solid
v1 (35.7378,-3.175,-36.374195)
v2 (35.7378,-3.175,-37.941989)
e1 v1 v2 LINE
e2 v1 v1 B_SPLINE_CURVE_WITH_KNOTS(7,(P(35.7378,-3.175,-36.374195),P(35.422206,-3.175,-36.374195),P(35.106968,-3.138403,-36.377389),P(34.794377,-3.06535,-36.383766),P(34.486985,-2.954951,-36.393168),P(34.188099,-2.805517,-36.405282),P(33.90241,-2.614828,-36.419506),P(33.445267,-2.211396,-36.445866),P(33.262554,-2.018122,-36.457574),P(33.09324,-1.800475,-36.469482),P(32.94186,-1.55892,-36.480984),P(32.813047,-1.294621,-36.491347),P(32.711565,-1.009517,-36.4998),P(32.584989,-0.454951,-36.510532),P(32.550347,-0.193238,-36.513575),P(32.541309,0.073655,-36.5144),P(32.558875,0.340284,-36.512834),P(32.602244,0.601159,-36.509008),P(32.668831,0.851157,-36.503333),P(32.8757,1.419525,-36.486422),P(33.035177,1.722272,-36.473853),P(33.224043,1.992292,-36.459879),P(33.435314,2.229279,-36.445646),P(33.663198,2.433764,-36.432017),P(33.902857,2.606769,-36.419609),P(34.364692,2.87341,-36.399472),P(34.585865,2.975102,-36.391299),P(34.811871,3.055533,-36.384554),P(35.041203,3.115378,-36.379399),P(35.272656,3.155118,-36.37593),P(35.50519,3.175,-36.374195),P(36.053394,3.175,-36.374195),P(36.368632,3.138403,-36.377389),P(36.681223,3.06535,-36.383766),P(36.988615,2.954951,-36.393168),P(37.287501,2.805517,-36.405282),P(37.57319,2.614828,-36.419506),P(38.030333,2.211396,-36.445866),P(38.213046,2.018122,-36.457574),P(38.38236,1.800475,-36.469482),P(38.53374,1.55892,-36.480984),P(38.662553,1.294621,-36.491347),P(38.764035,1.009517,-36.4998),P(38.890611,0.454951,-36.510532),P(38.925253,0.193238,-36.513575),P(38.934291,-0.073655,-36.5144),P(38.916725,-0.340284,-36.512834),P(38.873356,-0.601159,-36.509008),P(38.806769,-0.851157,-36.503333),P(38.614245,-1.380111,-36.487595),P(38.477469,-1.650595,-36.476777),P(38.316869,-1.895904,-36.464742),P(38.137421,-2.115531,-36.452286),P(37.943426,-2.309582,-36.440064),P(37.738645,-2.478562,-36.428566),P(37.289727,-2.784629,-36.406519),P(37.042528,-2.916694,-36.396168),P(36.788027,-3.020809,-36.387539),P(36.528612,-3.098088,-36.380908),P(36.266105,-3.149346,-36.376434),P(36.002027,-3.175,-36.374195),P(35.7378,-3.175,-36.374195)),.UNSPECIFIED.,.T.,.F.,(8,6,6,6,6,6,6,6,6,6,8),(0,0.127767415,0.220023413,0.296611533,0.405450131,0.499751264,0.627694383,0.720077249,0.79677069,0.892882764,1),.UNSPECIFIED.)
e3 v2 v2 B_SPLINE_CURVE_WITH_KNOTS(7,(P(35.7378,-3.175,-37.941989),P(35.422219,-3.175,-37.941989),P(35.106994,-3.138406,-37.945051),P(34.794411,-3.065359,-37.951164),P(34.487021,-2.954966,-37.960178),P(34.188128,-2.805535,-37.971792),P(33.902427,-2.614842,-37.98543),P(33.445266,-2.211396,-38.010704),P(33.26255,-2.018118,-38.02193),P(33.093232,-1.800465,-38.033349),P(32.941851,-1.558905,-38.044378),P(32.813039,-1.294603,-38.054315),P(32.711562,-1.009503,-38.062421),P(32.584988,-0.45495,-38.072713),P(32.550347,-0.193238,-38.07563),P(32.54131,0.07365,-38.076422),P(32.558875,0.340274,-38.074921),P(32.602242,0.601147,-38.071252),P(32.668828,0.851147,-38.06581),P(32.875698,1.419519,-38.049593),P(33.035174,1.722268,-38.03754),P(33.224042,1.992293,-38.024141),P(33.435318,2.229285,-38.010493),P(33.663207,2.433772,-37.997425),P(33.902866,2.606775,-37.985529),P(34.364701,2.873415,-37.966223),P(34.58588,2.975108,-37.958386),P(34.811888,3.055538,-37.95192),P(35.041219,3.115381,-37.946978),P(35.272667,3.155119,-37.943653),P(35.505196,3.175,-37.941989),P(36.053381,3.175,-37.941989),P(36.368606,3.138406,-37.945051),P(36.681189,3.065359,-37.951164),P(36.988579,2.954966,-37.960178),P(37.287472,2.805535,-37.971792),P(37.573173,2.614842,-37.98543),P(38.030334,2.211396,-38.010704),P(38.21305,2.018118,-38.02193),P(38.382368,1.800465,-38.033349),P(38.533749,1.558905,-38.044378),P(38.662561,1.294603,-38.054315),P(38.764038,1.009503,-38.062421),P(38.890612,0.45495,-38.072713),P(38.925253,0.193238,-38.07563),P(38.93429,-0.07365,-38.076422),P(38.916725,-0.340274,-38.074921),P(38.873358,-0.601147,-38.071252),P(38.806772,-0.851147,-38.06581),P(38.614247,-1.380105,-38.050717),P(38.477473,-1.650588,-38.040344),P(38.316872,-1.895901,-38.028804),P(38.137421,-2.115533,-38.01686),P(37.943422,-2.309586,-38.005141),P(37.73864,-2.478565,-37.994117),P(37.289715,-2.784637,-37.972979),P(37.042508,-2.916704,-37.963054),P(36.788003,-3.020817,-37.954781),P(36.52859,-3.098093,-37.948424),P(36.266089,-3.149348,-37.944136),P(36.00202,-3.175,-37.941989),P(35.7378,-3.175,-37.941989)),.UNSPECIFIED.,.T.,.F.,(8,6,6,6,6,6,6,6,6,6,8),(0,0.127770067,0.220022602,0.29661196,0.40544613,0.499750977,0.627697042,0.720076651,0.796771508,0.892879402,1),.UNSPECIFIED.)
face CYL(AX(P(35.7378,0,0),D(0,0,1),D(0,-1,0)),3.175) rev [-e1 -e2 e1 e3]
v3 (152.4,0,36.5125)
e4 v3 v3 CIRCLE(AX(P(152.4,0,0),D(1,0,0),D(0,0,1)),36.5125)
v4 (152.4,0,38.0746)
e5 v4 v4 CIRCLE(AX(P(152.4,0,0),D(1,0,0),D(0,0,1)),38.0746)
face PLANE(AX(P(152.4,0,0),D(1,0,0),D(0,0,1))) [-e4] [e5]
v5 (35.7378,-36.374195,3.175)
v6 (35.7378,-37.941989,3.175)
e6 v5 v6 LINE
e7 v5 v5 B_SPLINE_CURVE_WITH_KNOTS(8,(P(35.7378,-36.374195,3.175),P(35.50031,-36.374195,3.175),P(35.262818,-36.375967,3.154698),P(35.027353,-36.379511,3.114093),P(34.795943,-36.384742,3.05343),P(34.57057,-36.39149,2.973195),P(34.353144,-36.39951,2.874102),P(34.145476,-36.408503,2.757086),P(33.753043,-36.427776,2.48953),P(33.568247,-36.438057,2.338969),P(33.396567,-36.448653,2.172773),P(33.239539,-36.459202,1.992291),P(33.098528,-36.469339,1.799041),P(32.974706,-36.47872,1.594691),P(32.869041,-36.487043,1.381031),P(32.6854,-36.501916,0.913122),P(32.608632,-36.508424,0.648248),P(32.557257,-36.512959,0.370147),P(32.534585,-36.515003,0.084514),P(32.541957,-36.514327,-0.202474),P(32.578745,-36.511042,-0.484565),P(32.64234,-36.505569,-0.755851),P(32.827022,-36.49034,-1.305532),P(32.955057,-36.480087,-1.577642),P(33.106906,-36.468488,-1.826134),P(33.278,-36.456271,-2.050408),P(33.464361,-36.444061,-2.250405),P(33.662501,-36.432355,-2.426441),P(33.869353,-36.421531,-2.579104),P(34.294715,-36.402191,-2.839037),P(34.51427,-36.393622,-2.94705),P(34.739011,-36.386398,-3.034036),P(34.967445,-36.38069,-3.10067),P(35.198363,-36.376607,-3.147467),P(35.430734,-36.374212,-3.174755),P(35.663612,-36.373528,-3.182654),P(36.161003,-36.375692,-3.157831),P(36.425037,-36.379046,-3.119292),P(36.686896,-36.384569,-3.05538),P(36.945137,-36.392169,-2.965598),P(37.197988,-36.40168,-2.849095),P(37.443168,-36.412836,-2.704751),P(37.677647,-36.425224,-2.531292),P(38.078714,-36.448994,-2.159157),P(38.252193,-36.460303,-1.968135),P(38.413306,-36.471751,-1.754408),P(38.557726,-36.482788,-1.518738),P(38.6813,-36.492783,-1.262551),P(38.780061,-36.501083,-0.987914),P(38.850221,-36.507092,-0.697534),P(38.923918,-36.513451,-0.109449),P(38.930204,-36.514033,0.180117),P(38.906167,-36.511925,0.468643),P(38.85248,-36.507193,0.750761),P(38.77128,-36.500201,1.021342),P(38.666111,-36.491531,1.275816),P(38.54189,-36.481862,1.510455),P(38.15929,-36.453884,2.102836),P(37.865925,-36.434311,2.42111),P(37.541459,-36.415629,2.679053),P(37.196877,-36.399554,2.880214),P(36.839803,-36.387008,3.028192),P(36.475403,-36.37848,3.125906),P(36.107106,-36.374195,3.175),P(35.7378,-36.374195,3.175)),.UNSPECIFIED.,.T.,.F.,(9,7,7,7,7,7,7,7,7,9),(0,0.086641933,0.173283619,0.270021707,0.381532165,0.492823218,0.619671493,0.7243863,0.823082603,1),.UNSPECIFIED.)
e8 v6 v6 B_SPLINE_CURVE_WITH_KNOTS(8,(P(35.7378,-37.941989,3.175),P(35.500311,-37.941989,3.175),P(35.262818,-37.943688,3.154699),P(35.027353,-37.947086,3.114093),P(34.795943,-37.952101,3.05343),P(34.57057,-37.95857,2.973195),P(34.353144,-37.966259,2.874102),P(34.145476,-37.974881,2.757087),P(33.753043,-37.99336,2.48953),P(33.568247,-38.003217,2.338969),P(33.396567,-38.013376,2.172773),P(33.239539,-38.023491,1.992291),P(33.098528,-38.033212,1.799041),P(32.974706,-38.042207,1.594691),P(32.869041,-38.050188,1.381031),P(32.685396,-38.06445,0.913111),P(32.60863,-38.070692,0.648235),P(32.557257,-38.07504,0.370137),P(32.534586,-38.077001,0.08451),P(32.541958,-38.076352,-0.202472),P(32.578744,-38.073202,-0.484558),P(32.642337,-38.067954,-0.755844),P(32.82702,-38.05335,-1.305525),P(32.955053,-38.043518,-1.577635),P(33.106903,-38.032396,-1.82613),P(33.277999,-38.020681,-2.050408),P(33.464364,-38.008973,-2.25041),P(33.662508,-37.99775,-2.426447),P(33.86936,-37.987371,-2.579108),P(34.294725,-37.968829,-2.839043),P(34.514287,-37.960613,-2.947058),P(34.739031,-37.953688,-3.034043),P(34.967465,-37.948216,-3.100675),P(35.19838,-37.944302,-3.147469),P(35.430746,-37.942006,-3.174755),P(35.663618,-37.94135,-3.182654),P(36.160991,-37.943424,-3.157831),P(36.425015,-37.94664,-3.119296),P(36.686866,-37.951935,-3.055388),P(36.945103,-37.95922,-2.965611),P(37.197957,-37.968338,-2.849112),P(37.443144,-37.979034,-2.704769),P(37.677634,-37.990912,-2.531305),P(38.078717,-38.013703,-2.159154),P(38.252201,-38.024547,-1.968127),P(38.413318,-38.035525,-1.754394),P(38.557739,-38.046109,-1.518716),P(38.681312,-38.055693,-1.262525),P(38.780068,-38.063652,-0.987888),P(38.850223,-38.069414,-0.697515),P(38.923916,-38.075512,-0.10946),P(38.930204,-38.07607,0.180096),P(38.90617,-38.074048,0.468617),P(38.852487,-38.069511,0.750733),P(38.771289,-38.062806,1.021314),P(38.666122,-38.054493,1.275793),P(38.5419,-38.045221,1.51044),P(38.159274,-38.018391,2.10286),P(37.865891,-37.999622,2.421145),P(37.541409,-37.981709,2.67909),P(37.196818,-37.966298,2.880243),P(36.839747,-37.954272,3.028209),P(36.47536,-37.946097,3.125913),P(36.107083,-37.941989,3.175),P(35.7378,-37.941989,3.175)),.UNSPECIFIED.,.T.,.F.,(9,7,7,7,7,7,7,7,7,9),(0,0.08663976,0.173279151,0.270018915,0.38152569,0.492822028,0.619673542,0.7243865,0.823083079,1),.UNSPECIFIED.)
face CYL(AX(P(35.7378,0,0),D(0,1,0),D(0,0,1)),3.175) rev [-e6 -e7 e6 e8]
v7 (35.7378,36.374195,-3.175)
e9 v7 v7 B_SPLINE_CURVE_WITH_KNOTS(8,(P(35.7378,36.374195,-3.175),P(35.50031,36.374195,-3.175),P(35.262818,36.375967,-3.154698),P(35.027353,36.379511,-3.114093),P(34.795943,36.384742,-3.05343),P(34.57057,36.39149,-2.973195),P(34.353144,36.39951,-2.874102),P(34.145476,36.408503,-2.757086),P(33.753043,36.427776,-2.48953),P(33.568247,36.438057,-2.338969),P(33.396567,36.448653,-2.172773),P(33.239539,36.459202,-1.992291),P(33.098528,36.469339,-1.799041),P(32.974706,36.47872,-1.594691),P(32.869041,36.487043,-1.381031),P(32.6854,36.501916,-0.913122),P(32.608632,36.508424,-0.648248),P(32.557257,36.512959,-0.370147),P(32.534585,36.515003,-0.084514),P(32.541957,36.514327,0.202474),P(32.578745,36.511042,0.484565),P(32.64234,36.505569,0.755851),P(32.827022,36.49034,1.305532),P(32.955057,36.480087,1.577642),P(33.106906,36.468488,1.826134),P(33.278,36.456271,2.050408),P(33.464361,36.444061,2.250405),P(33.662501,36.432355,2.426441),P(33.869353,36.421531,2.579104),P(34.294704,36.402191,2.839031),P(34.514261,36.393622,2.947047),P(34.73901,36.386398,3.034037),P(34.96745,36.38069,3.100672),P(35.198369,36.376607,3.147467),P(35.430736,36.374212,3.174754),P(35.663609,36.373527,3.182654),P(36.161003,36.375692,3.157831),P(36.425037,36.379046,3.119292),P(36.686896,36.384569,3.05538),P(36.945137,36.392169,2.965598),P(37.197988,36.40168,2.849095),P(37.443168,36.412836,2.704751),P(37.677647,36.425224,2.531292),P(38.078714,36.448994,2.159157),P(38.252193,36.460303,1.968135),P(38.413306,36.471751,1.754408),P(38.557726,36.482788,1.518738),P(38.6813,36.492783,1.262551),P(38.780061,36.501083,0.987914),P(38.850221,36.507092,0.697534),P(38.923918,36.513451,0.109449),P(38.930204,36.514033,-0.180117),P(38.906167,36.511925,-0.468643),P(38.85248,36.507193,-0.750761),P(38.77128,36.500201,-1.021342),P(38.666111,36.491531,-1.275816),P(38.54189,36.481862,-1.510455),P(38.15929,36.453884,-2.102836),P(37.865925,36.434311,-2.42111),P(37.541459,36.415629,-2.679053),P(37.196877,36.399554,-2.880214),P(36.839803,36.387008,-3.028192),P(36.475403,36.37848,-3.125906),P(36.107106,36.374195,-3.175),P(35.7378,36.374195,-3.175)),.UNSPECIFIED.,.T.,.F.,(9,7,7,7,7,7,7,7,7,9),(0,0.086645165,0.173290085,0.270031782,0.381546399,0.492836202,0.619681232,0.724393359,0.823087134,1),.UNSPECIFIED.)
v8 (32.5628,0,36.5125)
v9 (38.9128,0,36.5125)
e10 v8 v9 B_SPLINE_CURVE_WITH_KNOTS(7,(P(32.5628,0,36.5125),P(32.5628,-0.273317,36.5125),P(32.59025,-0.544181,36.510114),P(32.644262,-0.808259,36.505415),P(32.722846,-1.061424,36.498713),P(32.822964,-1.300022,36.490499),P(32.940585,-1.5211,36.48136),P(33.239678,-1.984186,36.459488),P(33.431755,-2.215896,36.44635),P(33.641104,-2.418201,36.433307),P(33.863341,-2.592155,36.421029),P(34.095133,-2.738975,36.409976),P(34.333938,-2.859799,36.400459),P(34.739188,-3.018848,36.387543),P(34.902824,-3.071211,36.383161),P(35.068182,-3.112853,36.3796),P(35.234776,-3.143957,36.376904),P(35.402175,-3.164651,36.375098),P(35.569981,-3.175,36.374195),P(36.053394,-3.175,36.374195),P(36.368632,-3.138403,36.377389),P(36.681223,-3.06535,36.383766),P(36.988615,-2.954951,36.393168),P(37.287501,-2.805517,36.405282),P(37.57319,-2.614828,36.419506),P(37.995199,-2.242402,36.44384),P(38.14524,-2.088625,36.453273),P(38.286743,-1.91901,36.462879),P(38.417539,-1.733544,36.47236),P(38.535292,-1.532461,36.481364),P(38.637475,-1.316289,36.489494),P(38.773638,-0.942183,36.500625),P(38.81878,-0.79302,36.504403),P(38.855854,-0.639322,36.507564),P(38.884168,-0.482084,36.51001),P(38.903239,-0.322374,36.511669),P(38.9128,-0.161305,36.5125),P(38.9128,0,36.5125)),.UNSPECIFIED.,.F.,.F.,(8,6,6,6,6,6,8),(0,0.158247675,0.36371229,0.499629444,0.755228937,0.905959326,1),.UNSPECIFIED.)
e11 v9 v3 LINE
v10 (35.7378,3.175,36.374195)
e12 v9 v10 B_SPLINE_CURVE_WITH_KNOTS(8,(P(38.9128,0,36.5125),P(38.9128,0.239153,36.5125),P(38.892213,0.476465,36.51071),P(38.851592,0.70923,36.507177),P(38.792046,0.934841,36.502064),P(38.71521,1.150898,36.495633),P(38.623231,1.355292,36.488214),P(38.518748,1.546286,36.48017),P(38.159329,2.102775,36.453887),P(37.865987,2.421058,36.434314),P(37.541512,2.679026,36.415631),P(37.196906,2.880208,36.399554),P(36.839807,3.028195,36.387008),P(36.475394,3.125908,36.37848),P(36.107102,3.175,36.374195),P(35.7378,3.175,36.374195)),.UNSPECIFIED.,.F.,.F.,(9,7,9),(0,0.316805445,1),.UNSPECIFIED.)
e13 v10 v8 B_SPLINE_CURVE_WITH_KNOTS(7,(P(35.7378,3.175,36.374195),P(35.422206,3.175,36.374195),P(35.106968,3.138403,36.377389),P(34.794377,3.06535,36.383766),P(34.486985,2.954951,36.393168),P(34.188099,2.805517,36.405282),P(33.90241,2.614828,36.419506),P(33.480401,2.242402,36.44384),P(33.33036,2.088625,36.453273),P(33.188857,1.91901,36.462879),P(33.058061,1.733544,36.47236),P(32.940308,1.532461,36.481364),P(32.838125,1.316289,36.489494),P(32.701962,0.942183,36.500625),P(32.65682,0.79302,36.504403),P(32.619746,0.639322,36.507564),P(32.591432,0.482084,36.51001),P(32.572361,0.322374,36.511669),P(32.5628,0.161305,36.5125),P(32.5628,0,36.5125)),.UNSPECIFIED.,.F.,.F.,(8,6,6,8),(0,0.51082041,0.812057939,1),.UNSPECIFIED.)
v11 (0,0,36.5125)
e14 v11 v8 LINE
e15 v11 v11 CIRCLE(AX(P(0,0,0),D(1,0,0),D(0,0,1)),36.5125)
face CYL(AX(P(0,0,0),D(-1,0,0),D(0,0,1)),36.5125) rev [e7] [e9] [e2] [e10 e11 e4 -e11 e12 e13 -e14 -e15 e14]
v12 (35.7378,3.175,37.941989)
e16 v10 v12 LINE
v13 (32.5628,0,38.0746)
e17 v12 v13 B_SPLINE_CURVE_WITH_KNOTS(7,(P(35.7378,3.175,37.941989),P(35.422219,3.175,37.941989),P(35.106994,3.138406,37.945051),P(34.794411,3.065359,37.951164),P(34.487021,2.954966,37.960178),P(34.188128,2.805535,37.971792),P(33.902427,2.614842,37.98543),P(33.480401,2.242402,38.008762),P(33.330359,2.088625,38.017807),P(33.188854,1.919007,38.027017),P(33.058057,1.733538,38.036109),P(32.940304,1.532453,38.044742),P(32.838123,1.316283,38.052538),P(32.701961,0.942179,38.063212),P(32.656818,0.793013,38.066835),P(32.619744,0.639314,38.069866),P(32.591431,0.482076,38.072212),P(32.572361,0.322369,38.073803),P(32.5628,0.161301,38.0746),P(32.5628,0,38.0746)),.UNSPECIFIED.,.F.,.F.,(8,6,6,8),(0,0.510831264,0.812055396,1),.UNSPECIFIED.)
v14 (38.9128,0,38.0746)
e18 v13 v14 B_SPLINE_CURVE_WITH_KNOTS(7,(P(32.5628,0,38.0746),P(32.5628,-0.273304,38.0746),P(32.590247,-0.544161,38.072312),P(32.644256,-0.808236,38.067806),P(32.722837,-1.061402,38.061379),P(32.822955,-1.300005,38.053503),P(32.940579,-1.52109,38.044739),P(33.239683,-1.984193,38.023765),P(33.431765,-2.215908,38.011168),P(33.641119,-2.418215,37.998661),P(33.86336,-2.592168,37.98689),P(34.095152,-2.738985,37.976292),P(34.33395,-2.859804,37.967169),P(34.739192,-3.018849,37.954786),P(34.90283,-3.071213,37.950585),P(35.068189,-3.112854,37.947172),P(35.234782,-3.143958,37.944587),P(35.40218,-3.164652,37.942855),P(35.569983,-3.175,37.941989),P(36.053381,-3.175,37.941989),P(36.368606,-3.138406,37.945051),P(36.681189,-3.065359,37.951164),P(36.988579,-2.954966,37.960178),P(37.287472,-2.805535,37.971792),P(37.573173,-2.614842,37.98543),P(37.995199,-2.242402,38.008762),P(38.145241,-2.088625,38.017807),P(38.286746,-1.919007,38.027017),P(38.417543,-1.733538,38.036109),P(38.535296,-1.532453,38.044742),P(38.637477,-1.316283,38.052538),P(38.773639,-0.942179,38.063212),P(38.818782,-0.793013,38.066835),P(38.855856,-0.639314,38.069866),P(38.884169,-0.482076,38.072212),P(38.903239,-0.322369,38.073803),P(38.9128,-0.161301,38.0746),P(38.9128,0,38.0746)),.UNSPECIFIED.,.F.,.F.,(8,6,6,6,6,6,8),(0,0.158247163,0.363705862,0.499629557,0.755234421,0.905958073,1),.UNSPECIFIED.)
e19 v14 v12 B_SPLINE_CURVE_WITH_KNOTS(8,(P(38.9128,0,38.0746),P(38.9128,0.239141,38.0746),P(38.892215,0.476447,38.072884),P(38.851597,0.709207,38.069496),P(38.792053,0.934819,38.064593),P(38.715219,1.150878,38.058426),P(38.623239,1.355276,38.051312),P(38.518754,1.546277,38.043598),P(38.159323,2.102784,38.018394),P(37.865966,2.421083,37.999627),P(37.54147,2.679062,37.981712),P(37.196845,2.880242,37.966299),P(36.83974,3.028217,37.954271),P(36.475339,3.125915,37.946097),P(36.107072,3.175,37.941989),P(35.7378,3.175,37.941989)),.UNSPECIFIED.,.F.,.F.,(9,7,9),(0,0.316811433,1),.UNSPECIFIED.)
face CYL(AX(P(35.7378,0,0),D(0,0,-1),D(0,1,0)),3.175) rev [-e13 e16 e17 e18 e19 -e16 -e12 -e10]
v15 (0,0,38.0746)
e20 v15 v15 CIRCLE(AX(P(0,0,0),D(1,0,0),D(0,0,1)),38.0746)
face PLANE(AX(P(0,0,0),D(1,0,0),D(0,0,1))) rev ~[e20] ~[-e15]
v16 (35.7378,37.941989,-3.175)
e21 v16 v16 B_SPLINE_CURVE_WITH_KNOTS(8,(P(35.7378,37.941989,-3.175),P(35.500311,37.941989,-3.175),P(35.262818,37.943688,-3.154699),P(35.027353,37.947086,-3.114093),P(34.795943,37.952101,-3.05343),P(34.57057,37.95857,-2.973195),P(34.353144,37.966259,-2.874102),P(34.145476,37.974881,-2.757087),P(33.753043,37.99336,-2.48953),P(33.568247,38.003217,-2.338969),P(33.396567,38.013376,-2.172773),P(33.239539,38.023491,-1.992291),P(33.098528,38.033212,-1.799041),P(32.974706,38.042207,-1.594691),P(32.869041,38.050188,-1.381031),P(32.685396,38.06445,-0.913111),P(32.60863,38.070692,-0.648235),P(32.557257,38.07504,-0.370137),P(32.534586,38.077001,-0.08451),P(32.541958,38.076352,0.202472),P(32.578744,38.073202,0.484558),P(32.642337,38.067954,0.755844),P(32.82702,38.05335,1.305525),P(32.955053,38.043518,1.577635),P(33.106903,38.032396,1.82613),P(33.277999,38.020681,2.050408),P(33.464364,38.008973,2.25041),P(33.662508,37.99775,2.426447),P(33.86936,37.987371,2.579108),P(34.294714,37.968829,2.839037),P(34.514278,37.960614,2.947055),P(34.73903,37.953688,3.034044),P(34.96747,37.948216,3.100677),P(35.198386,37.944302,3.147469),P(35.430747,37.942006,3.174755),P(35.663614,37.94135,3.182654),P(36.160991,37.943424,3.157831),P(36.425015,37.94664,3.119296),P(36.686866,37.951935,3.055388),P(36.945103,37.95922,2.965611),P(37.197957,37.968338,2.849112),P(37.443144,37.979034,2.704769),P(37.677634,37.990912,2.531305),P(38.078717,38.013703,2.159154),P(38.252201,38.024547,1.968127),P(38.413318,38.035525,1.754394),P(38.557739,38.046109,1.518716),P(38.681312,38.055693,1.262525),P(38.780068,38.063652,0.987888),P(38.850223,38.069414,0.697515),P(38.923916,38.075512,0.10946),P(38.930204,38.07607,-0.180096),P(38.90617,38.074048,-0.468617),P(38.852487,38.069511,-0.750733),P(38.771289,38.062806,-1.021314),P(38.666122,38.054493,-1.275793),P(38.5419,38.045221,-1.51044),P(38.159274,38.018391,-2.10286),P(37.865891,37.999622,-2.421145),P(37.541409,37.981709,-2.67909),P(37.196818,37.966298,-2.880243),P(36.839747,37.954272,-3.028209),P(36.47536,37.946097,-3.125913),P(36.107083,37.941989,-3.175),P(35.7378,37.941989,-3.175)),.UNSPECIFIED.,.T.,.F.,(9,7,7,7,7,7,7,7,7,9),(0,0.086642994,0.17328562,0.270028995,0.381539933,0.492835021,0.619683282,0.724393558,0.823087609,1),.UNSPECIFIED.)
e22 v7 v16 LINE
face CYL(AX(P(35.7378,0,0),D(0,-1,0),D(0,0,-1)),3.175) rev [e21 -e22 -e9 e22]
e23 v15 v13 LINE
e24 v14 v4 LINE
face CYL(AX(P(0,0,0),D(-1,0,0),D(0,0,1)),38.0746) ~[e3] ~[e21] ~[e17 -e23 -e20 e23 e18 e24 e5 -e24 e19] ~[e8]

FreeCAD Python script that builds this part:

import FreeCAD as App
import Part
import Sketcher
Q = App.Units.Quantity

doc = App.newDocument("Part")
body = doc.addObject("PartDesign::Body", "Body")

# Sketch on YZ plane
sketch1 = body.newObject("Sketcher::SketchObject", "Sketch")
sketch1.AttachmentSupport = (doc.getObject("YZ_Plane"), [""])
sketch1.MapMode = "FlatFace"
sketch1.addGeometry([
    Part.Circle(App.Vector(0, 0, 0), App.Vector(0, 0, 1), 38.0746),
    Part.Circle(App.Vector(0, 0, 0), App.Vector(0, 0, 1), 36.5125),
], False)
sketch1.addConstraint([
    Sketcher.Constraint("Coincident", 0, 3, -1, 1),
    Sketcher.Constraint("Coincident", 1, 3, -1, 1),
    Sketcher.Constraint("Diameter", 0, Q("2.998 in")),
    Sketcher.Constraint("Diameter", 1, Q("2.875 in")),
])
pad1 = body.newObject("PartDesign::Pad", "Pad")
pad1.Profile = sketch1
pad1.Length = Q("6 in")

# Sketch on XZ plane
sketch2 = body.newObject("Sketcher::SketchObject", "Sketch001")
sketch2.AttachmentSupport = (doc.getObject("XZ_Plane"), [""])
sketch2.MapMode = "FlatFace"
sketch2.addGeometry(Part.Circle(App.Vector(35.7378, 0, 0), App.Vector(0, 0, 1), 3.175), False)
sketch2.addConstraint([
    Sketcher.Constraint("PointOnObject", 0, 3, -1),
    Sketcher.Constraint("Diameter", 0, Q("0.25 in")),
    Sketcher.Constraint("DistanceX", -1, 1, 0, 3, Q("1.407 in")),
])
pocket1 = body.newObject("PartDesign::Pocket", "Pocket")
pocket1.Profile = sketch2
pocket1.Type = "ThroughAll"
doc.recompute()

polarpattern = body.newObject("PartDesign::PolarPattern", "PolarPattern")
polarpattern.Originals = [pocket1]
polarpattern.Axis = (doc.getObject("X_Axis"), [""])
polarpattern.Angle = 360
polarpattern.Occurrences = 4
body.Tip = polarpattern

doc.recompute()
